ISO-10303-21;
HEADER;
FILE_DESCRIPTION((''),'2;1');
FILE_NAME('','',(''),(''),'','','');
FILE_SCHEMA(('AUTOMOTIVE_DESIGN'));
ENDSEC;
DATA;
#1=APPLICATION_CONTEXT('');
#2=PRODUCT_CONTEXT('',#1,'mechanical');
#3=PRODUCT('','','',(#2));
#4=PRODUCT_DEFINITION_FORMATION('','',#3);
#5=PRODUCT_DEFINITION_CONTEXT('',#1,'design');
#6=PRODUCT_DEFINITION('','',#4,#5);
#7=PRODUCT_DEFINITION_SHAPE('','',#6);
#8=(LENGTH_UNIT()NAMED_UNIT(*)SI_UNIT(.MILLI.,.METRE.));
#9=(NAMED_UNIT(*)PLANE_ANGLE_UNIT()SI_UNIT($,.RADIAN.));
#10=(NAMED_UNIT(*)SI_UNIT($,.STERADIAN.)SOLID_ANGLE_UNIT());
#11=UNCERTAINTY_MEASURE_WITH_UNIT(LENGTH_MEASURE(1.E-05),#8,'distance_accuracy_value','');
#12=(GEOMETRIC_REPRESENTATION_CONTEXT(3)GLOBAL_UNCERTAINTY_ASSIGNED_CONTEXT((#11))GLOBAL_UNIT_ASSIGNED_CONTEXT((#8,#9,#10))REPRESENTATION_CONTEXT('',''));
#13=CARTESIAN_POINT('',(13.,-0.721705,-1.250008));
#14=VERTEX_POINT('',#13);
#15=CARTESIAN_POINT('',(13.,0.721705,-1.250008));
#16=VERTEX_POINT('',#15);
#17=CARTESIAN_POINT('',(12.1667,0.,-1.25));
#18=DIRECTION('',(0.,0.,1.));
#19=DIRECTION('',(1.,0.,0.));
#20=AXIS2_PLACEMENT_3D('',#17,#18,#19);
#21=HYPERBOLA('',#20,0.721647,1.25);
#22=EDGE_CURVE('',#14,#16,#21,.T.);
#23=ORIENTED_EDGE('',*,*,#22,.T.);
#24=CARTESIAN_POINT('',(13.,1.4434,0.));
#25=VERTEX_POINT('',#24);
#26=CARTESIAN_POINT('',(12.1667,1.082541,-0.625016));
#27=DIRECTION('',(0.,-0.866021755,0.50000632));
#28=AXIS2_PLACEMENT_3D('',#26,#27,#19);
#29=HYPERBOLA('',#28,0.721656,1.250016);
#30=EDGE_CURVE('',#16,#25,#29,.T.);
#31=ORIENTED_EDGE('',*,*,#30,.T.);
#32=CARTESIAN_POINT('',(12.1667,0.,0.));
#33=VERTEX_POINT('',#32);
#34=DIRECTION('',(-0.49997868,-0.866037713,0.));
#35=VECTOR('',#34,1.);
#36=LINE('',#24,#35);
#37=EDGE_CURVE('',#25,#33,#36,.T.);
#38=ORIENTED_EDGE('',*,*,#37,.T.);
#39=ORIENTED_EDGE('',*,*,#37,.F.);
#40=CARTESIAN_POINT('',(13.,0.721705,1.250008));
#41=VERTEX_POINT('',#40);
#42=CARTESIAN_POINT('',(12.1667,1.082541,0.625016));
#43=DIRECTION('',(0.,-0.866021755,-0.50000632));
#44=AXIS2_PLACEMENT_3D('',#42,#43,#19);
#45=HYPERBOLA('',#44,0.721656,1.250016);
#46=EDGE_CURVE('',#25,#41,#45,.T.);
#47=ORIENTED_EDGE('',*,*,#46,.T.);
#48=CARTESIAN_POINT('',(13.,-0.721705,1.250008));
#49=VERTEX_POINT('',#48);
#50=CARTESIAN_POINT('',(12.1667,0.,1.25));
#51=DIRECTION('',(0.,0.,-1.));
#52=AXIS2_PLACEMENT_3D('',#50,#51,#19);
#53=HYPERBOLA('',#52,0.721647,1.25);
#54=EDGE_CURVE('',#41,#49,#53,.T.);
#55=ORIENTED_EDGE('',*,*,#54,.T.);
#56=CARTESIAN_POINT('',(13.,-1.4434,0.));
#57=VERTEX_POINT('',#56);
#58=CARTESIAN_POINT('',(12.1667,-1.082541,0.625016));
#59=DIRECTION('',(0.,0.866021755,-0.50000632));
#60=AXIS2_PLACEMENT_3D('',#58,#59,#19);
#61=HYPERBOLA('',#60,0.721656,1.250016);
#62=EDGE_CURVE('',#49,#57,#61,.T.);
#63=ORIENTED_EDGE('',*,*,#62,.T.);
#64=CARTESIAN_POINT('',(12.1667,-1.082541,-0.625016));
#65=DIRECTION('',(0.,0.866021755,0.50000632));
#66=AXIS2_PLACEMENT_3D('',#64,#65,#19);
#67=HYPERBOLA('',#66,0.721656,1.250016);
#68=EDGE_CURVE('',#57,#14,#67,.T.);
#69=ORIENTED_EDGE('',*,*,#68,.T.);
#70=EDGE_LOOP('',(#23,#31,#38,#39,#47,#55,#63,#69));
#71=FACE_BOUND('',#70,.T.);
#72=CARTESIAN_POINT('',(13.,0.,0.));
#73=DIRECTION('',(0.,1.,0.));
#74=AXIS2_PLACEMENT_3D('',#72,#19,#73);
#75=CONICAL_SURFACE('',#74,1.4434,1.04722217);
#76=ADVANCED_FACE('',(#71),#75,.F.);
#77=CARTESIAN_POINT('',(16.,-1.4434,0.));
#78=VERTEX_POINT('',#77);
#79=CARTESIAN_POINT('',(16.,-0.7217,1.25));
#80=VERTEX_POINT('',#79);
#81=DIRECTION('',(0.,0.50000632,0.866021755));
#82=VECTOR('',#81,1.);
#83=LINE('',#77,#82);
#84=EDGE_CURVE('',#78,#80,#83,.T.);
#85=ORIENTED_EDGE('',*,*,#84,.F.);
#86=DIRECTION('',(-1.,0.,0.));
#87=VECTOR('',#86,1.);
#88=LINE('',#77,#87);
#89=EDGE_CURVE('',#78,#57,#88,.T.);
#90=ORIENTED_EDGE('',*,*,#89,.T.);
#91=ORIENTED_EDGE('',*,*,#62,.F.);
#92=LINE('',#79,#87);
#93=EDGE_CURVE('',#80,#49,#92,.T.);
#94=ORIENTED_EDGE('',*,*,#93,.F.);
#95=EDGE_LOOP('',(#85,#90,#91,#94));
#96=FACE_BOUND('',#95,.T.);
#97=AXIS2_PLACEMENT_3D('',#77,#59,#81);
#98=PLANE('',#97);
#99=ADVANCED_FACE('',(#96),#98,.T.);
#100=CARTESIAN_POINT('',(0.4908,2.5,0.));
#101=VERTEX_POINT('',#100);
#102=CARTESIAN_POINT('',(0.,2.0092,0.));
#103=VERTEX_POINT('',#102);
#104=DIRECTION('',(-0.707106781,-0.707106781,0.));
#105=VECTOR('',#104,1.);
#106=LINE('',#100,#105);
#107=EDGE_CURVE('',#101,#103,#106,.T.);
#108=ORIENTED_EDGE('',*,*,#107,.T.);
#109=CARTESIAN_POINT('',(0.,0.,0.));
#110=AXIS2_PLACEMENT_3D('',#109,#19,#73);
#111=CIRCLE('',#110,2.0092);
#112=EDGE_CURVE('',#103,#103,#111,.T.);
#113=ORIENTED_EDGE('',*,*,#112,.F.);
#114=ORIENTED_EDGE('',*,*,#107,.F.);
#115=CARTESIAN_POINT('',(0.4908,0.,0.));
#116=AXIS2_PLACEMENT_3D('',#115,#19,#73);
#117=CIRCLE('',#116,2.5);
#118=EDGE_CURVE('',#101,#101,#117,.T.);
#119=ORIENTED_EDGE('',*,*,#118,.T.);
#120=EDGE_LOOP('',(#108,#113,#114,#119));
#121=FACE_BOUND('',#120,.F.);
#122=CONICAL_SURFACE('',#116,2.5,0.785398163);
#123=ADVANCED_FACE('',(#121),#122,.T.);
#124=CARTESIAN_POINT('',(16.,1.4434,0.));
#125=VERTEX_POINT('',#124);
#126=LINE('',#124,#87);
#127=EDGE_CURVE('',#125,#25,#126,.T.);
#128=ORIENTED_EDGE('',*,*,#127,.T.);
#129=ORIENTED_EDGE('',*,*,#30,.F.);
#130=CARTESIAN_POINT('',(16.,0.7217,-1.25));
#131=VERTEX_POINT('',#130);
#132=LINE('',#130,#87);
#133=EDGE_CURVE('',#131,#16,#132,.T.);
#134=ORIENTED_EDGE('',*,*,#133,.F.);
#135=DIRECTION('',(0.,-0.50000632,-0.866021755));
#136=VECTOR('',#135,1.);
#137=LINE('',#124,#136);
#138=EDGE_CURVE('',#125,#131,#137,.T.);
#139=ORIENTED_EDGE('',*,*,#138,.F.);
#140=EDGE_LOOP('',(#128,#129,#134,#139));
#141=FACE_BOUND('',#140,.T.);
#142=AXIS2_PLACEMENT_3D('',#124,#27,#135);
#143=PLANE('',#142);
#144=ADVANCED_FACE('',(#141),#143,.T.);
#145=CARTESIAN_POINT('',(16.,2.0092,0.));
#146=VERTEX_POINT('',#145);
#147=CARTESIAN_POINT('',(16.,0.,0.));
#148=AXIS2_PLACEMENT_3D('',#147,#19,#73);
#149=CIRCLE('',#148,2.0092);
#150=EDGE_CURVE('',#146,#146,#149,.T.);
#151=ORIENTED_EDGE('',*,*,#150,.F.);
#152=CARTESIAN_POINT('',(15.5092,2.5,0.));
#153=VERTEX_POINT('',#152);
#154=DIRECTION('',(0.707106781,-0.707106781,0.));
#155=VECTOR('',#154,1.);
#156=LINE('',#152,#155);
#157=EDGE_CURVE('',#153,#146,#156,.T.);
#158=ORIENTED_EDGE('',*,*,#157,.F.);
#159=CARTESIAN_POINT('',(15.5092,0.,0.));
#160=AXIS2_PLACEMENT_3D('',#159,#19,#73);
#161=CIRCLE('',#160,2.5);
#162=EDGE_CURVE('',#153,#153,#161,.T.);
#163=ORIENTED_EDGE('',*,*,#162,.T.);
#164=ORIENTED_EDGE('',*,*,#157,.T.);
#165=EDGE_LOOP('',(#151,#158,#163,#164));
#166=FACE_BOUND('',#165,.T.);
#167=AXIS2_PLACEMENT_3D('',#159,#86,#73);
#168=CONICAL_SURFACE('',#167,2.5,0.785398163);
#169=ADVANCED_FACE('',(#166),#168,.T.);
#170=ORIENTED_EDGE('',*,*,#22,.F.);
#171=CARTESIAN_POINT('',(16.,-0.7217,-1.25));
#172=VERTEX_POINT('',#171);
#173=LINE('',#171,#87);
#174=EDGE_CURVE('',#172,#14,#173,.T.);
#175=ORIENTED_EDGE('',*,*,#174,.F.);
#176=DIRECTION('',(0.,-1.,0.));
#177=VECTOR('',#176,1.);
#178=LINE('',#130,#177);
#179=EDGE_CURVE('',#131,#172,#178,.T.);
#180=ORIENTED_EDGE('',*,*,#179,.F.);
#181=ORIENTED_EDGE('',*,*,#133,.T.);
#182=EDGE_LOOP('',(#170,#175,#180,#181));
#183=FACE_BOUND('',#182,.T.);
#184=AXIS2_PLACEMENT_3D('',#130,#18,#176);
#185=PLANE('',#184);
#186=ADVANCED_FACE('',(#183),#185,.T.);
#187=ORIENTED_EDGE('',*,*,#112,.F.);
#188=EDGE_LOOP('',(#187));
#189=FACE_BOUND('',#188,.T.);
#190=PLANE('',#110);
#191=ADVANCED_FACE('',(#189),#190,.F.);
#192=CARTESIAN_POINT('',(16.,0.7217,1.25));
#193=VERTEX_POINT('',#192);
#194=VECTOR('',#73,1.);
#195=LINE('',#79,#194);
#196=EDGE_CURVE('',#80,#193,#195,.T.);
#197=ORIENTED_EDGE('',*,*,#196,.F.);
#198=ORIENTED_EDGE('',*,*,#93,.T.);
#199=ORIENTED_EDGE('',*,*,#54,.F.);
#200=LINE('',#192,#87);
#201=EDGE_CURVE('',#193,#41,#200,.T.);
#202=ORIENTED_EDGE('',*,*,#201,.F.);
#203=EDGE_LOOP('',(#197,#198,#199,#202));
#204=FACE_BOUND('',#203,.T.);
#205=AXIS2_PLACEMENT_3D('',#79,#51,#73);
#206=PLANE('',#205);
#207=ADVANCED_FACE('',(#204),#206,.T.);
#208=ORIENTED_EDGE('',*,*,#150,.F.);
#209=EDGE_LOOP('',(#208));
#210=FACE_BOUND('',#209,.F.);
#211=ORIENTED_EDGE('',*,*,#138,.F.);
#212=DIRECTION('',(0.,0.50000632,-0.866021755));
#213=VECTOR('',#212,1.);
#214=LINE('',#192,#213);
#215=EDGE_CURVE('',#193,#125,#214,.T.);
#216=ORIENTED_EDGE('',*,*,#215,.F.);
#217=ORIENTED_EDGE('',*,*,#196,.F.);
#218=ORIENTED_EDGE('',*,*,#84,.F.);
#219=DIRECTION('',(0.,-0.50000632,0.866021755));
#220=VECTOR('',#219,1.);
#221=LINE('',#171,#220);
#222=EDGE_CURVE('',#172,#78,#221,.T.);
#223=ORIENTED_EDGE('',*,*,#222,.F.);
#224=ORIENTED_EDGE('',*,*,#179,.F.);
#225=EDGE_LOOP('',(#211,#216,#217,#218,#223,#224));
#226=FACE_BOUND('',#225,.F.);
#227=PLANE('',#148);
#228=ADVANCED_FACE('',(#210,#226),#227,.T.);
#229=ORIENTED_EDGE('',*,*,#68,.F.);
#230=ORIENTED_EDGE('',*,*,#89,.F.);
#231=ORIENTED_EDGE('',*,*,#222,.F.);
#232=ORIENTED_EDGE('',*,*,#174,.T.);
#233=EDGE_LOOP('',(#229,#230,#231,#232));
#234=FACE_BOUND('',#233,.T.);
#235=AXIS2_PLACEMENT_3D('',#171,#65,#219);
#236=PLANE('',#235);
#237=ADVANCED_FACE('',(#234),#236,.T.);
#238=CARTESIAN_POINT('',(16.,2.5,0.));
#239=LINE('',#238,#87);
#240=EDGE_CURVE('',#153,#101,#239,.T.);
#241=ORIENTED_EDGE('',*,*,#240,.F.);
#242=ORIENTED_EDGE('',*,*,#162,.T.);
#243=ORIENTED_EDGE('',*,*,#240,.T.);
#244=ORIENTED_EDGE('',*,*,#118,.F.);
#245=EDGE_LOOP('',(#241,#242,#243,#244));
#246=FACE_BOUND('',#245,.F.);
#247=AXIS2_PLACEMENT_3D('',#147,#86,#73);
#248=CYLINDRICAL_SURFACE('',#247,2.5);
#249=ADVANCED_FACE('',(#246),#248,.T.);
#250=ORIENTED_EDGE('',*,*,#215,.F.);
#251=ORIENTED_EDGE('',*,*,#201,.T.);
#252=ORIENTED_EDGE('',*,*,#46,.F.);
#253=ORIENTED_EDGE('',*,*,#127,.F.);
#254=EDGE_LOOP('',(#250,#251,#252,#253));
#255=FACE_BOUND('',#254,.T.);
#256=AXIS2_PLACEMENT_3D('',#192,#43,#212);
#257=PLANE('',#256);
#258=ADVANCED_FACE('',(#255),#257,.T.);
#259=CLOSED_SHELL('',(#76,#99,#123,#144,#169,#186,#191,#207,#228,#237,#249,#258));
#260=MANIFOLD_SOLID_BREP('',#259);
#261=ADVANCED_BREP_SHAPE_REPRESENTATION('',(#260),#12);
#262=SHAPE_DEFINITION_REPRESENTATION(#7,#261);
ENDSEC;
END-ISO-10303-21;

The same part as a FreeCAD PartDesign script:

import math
import FreeCAD as App
import Part
import Sketcher

V = App.Vector
Q = App.Units.Quantity


def edges_at(feature, points):
    """Names of the edges that pass closest to the given points."""
    edges = feature.Shape.Edges
    near = lambda p: min(range(len(edges)), key=lambda i: edges[i].distToShape(Part.Vertex(*p))[0])
    return sorted({f"Edge{near(p) + 1}" for p in points})


def add_polygon(sketch, points):
    """Adds a closed chain of lines whose ends are joined by coincident constraints."""
    first, n = sketch.GeometryCount, len(points)
    for a, b in zip(points, points[1:] + points[:1]):
        sketch.addGeometry(Part.LineSegment(App.Vector(*a, 0), App.Vector(*b, 0)), False)
    for i in range(n):
        sketch.addConstraint(Sketcher.Constraint("Coincident", first + i, 2, first + (i + 1) % n, 1))

doc = App.newDocument("Part")
params = doc.addObject("Spreadsheet::Sheet", "Params")
for row, (alias, value) in enumerate([
    ("sketch1_width", "3 mm"),
    ("sketch1_width2", "16 mm"),
    ("sketch1_height", "2.5 mm"),
    ("revolution_angle", "360 deg"),
    ("chamfer_size", "0.4908 mm"),
    ("chamfer2_size", "0.4908 mm"),
], start=1):
    params.set(f"A{row}", alias)
    params.set(f"B{row}", "=" + value)
    params.setAlias(f"B{row}", alias)

body = doc.addObject("PartDesign::Body", "Body")

# Sketch on XY plane
sketch1 = body.newObject("Sketcher::SketchObject", "Sketch")
sketch1.AttachmentSupport = (doc.getObject("XY_Plane"), [""])
sketch1.MapMode = "FlatFace"
add_polygon(sketch1, [(0, 2.5), (0, 0), (12.2, 0), (13, 1.4), (16, 1.4), (16, 2.5)])  # lines 0-5
sketch1.addConstraint(Sketcher.Constraint("Vertical", 0))
sketch1.addConstraint(Sketcher.Constraint("Horizontal", 1))
sketch1.addConstraint(Sketcher.Constraint("Horizontal", 3))
sketch1.addConstraint(Sketcher.Constraint("Vertical", 4))
sketch1.addConstraint(Sketcher.Constraint("Horizontal", 5))
sketch1.addConstraint(Sketcher.Constraint("Coincident", 0, 2, -1, 1))
sketch1.addConstraint(Sketcher.Constraint("DistanceX", 3, 1, 3, 2, Q("3 mm")))
sketch1.addConstraint(Sketcher.Constraint("DistanceX", 5, 2, 5, 1, Q("16 mm")))
sketch1.addConstraint(Sketcher.Constraint("DistanceY", 0, 2, 0, 1, Q("2.5 mm")))
sketch1.addConstraint(Sketcher.Constraint("DistanceX", 1, 1, 1, 2, Q("12.1667 mm")))
sketch1.addConstraint(Sketcher.Constraint("DistanceY", 4, 1, 4, 2, Q("1.0566 mm")))
sketch1.setExpression("Constraints[12]", "Params.sketch1_width")
sketch1.setExpression("Constraints[13]", "Params.sketch1_width2")
sketch1.setExpression("Constraints[14]", "Params.sketch1_height")
revolution = body.newObject("PartDesign::Revolution", "Revolution")
revolution.Profile = sketch1
revolution.ReferenceAxis = (sketch1, ["H_Axis"])
revolution.setExpression("Angle", "Params.revolution_angle")

# Sketch on YZ plane
sketch2 = body.newObject("Sketcher::SketchObject", "Sketch001")
sketch2.AttachmentSupport = (doc.getObject("YZ_Plane"), [""])
sketch2.MapMode = "FlatFace"
sketch2.AttachmentOffset = App.Placement(V(0, 0, 16), App.Rotation())
sketch2.addGeometry(Part.LineSegment(V(0.7, 1.2, 0), V(1.4, 0, 0)), False)
sketch2.addGeometry(Part.ArcOfCircle(Part.Circle(V(0, 0, 0), V(0, 0, 1), 1.4), math.radians(0), math.radians(60)), False)
sketch2.addGeometry(Part.ArcOfCircle(Part.Circle(V(0, 0, 0), V(0, 0, 1), 1.4), math.radians(-60), math.radians(0)), False)
sketch2.addGeometry(Part.LineSegment(V(1.4, 0, 0), V(0.7, -1.2, 0)), False)
sketch2.addGeometry(Part.LineSegment(V(-0.7, 1.2, 0), V(0.7, 1.2, 0)), False)
sketch2.addGeometry(Part.ArcOfCircle(Part.Circle(V(0, 0, 0), V(0, 0, 1), 1.4), math.radians(60), math.radians(120)), False)
sketch2.addGeometry(Part.ArcOfCircle(Part.Circle(V(0, 0, 0), V(0, 0, 1), 1.4), math.radians(-120), math.radians(-60)), False)
sketch2.addGeometry(Part.LineSegment(V(-0.7, -1.2, 0), V(0.7, -1.2, 0)), False)
sketch2.addGeometry(Part.LineSegment(V(-1.4, 0, 0), V(-0.7, 1.2, 0)), False)
sketch2.addGeometry(Part.ArcOfCircle(Part.Circle(V(0, 0, 0), V(0, 0, 1), 1.4), math.radians(120), math.radians(180)), False)
sketch2.addGeometry(Part.ArcOfCircle(Part.Circle(V(0, 0, 0), V(0, 0, 1), 1.4), math.radians(180), math.radians(240)), False)
sketch2.addGeometry(Part.LineSegment(V(-1.4, 0, 0), V(-0.7, -1.2, 0)), False)
sketch2.addConstraint(Sketcher.Constraint("Coincident", 0, 1, 1, 2))
sketch2.addConstraint(Sketcher.Constraint("Coincident", 1, 1, 0, 2))
sketch2.addConstraint(Sketcher.Constraint("Coincident", 2, 1, 3, 2))
sketch2.addConstraint(Sketcher.Constraint("Coincident", 3, 1, 2, 2))
sketch2.addConstraint(Sketcher.Constraint("Coincident", 4, 1, 5, 2))
sketch2.addConstraint(Sketcher.Constraint("Coincident", 5, 1, 4, 2))
sketch2.addConstraint(Sketcher.Constraint("Coincident", 6, 1, 7, 1))
sketch2.addConstraint(Sketcher.Constraint("Coincident", 7, 2, 6, 2))
sketch2.addConstraint(Sketcher.Constraint("Coincident", 8, 1, 9, 2))
sketch2.addConstraint(Sketcher.Constraint("Coincident", 9, 1, 8, 2))
sketch2.addConstraint(Sketcher.Constraint("Coincident", 10, 1, 11, 1))
sketch2.addConstraint(Sketcher.Constraint("Coincident", 11, 2, 10, 2))
sketch2.addConstraint(Sketcher.Constraint("Horizontal", 4))
sketch2.addConstraint(Sketcher.Constraint("Horizontal", 7))
sketch2.addConstraint(Sketcher.Constraint("Coincident", 1, 3, -1, 1))
sketch2.addConstraint(Sketcher.Constraint("Coincident", 2, 3, -1, 1))
sketch2.addConstraint(Sketcher.Constraint("Coincident", 5, 3, -1, 1))
sketch2.addConstraint(Sketcher.Constraint("Coincident", 6, 3, -1, 1))
sketch2.addConstraint(Sketcher.Constraint("Coincident", 9, 3, -1, 1))
sketch2.addConstraint(Sketcher.Constraint("Coincident", 10, 3, -1, 1))
sketch2.addConstraint(Sketcher.Constraint("Coincident", 3, 1, 1, 1))
sketch2.addConstraint(Sketcher.Constraint("Coincident", 5, 1, 0, 1))
sketch2.addConstraint(Sketcher.Constraint("Coincident", 7, 2, 2, 1))
sketch2.addConstraint(Sketcher.Constraint("Coincident", 9, 1, 4, 1))
sketch2.addConstraint(Sketcher.Constraint("Coincident", 10, 1, 8, 1))
sketch2.addConstraint(Sketcher.Constraint("PointOnObject", 1, 1, -1))
sketch2.addConstraint(Sketcher.Constraint("PointOnObject", 8, 1, -1))
sketch2.addConstraint(Sketcher.Constraint("Parallel", 3, 8))
sketch2.addConstraint(Sketcher.Constraint("Parallel", 0, 11))
sketch2.addConstraint(Sketcher.Constraint("Angle", 0, Q("-59.9996 deg")))
sketch2.addConstraint(Sketcher.Constraint("Radius", 1, Q("1.4434 mm")))
pad1 = body.newObject("PartDesign::Pad", "Pad")
pad1.Profile = sketch2
pad1.Type = "UpToFirst"
pad1.Reversed = True
doc.recompute()

chamfer = body.newObject("PartDesign::Chamfer", "Chamfer")
chamfer.Base = (pad1, edges_at(pad1, [(16, -2.5, 0)]))
chamfer.setExpression("Size", "Params.chamfer_size")
doc.recompute()

chamfer2 = body.newObject("PartDesign::Chamfer", "Chamfer001")
chamfer2.Base = (chamfer, edges_at(chamfer, [(0, -2.5, 0)]))
chamfer2.setExpression("Size", "Params.chamfer2_size")

doc.recompute()
